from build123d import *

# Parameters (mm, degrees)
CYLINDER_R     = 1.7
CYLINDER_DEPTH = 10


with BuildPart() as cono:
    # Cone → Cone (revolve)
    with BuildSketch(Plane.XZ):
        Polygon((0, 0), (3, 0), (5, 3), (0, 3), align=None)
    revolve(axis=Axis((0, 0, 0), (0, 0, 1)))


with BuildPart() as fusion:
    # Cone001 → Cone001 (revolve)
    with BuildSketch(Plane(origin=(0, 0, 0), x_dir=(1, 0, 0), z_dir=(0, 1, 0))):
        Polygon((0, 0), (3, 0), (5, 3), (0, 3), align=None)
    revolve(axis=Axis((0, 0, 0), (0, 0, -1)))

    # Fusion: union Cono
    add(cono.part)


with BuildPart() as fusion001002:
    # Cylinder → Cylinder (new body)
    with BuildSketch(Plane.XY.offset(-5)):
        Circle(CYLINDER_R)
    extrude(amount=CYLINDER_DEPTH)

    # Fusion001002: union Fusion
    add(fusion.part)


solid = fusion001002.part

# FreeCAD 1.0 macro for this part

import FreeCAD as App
import Part
import Sketcher
from FreeCAD import Vector

doc = App.newDocument("Part")
params = doc.addObject("Spreadsheet::Sheet", "Params")
for row, (alias, value) in enumerate([
    ("sketch1_width", "3 mm"),
    ("sketch1_width2", "5 mm"),
    ("revolution_angle", "360 deg"),
    ("sketch2_width", "3 mm"),
    ("sketch2_width2", "5 mm"),
    ("revolution2_angle", "360 deg"),
    ("sketch3_diameter", "3.4 mm"),
    ("pad1_length", "10 mm"),
], start=1):
    params.set(f"A{row}", alias)
    params.set(f"B{row}", "=" + value)
    params.setAlias(f"B{row}", alias)

body = doc.addObject("PartDesign::Body", "Body")

# Sketch on XZ plane
sketch1 = body.newObject("Sketcher::SketchObject", "Sketch")
sketch1.AttachmentSupport = (doc.getObject("XZ_Plane"), [""])
sketch1.MapMode = "FlatFace"
sketch1.addGeometry(Part.LineSegment(Vector(0, 0, 0), Vector(3, 0, 0)), False)
sketch1.addGeometry(Part.LineSegment(Vector(3, 0, 0), Vector(5, 3, 0)), False)
sketch1.addGeometry(Part.LineSegment(Vector(5, 3, 0), Vector(0, 3, 0)), False)
sketch1.addGeometry(Part.LineSegment(Vector(0, 3, 0), Vector(0, 0, 0)), False)
sketch1.addConstraint(Sketcher.Constraint("Coincident", 0, 2, 1, 1))
sketch1.addConstraint(Sketcher.Constraint("Coincident", 1, 2, 2, 1))
sketch1.addConstraint(Sketcher.Constraint("Coincident", 2, 2, 3, 1))
sketch1.addConstraint(Sketcher.Constraint("Coincident", 3, 2, 0, 1))
sketch1.addConstraint(Sketcher.Constraint("Horizontal", 0))
sketch1.addConstraint(Sketcher.Constraint("Horizontal", 2))
sketch1.addConstraint(Sketcher.Constraint("Vertical", 3))
sketch1.addConstraint(Sketcher.Constraint("Coincident", 3, 2, -1, 1))
sketch1.addConstraint(Sketcher.Constraint("Equal", 0, 3))
sketch1.addConstraint(Sketcher.Constraint("DistanceX", 0, 1, 0, 2, 3.0))
sketch1.addConstraint(Sketcher.Constraint("DistanceX", 2, 2, 2, 1, 5.0))
sketch1.setExpression("Constraints[9]", "Params.sketch1_width")
sketch1.setExpression("Constraints[10]", "Params.sketch1_width2")
revolution = body.newObject("PartDesign::Revolution", "Revolution")
revolution.Profile = sketch1
revolution.ReferenceAxis = (sketch1, ["V_Axis"])
revolution.setExpression("Angle", "Params.revolution_angle")
body2 = doc.addObject("PartDesign::Body", "Body001")

# Sketch on XZ plane
sketch2 = body2.newObject("Sketcher::SketchObject", "Sketch001")
sketch2.AttachmentSupport = (doc.getObject("XZ_Plane001"), [""])
sketch2.MapMode = "FlatFace"
sketch2.addGeometry(Part.LineSegment(Vector(0, 0, 0), Vector(3, 0, 0)), False)
sketch2.addGeometry(Part.LineSegment(Vector(3, 0, 0), Vector(5, -3, 0)), False)
sketch2.addGeometry(Part.LineSegment(Vector(5, -3, 0), Vector(0, -3, 0)), False)
sketch2.addGeometry(Part.LineSegment(Vector(0, -3, 0), Vector(0, 0, 0)), False)
sketch2.addConstraint(Sketcher.Constraint("Coincident", 0, 2, 1, 1))
sketch2.addConstraint(Sketcher.Constraint("Coincident", 1, 2, 2, 1))
sketch2.addConstraint(Sketcher.Constraint("Coincident", 2, 2, 3, 1))
sketch2.addConstraint(Sketcher.Constraint("Coincident", 3, 2, 0, 1))
sketch2.addConstraint(Sketcher.Constraint("Horizontal", 0))
sketch2.addConstraint(Sketcher.Constraint("Horizontal", 2))
sketch2.addConstraint(Sketcher.Constraint("Vertical", 3))
sketch2.addConstraint(Sketcher.Constraint("Coincident", 3, 2, -1, 1))
sketch2.addConstraint(Sketcher.Constraint("Equal", 0, 3))
sketch2.addConstraint(Sketcher.Constraint("DistanceX", 0, 1, 0, 2, 3.0))
sketch2.addConstraint(Sketcher.Constraint("DistanceX", 2, 2, 2, 1, 5.0))
sketch2.setExpression("Constraints[9]", "Params.sketch2_width")
sketch2.setExpression("Constraints[10]", "Params.sketch2_width2")
revolution2 = body2.newObject("PartDesign::Revolution", "Revolution001")
revolution2.Profile = sketch2
revolution2.ReferenceAxis = (sketch2, ["V_Axis"])
revolution2.setExpression("Angle", "Params.revolution2_angle")
doc.recompute()

boolean = body2.newObject("PartDesign::Boolean", "Boolean")
boolean.Type = "Fuse"
boolean.addObjects([body])
body3 = doc.addObject("PartDesign::Body", "Body002")

# Sketch on XY plane
sketch3 = body3.newObject("Sketcher::SketchObject", "Sketch002")
sketch3.AttachmentSupport = (doc.getObject("XY_Plane002"), [""])
sketch3.MapMode = "FlatFace"
sketch3.AttachmentOffset = App.Placement(Vector(0, 0, -5), App.Rotation())
sketch3.addGeometry(Part.Circle(Vector(0, 0, 0), Vector(0, 0, 1), 1.7), False)
sketch3.addConstraint(Sketcher.Constraint("Coincident", 0, 3, -1, 1))
sketch3.addConstraint(Sketcher.Constraint("Diameter", 0, 3.4))
sketch3.setExpression("Constraints[1]", "Params.sketch3_diameter")
pad1 = body3.newObject("PartDesign::Pad", "Pad")
pad1.Profile = sketch3
pad1.setExpression("Length", "Params.pad1_length")
doc.recompute()

boolean2 = body3.newObject("PartDesign::Boolean", "Boolean001")
boolean2.Type = "Fuse"
boolean2.addObjects([body2])

doc.recompute()
